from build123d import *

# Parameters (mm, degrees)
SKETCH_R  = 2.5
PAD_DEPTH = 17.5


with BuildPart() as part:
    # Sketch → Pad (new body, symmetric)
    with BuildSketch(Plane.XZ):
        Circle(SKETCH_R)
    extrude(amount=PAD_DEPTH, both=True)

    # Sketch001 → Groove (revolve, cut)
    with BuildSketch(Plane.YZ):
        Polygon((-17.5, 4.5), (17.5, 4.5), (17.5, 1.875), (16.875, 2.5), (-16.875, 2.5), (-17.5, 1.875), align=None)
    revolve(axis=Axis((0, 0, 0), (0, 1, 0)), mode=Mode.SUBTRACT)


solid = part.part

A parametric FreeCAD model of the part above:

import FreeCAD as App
import Part
import Sketcher
Q = App.Units.Quantity

doc = App.newDocument("Part")
body = doc.addObject("PartDesign::Body", "Body")

# Sketch on XZ plane
sketch1 = doc.addObject("Sketcher::SketchObject", "Sketch")
body.addObject(sketch1)
sketch1.AttachmentSupport = (doc.XZ_Plane, [""])
sketch1.MapMode = "FlatFace"
sketch1.addGeometry(Part.Circle(App.Vector(0, 0, 0), App.Vector(0, 0, 1), 2.5), False)
sketch1.addConstraint([
    Sketcher.Constraint("Coincident", 0, 3, -1, 1),
    Sketcher.Constraint("Diameter", 0, Q("5 mm")),
])
pad1 = doc.addObject("PartDesign::Pad", "Pad")
body.addObject(pad1)
pad1.Profile = sketch1
pad1.Length = 35
pad1.Midplane = True

# Sketch on YZ plane
sketch2 = doc.addObject("Sketcher::SketchObject", "Sketch001")
body.addObject(sketch2)
sketch2.AttachmentSupport = (doc.YZ_Plane, [""])
sketch2.MapMode = "FlatFace"
sketch2.addGeometry([
    Part.LineSegment(App.Vector(17.5, 4.5, 0), App.Vector(-17.5, 4.5, 0)),  # 0
    Part.LineSegment(App.Vector(-17.5, 4.5, 0), App.Vector(-17.5, 1.9, 0)),  # 1
    Part.LineSegment(App.Vector(-17.5, 1.9, 0), App.Vector(-16.9, 2.5, 0)),  # 2
    Part.LineSegment(App.Vector(-16.9, 2.5, 0), App.Vector(16.9, 2.5, 0)),  # 3
    Part.LineSegment(App.Vector(16.9, 2.5, 0), App.Vector(17.5, 1.9, 0)),  # 4
    Part.LineSegment(App.Vector(17.5, 1.9, 0), App.Vector(17.5, 4.5, 0)),  # 5
], False)
sketch2.addConstraint([
    Sketcher.Constraint("Coincident", 0, 2, 1, 1),
    Sketcher.Constraint("Coincident", 1, 2, 2, 1),
    Sketcher.Constraint("Coincident", 2, 2, 3, 1),
    Sketcher.Constraint("Coincident", 3, 2, 4, 1),
    Sketcher.Constraint("Coincident", 4, 2, 5, 1),
    Sketcher.Constraint("Coincident", 5, 2, 0, 1),
    Sketcher.Constraint("Horizontal", 0),
    Sketcher.Constraint("Vertical", 1),
    Sketcher.Constraint("Horizontal", 3),
    Sketcher.Constraint("Vertical", 5),
    Sketcher.Constraint("Symmetric", 1, 2, 4, 2, -2),
    Sketcher.Constraint("Perpendicular", 2, 4),
    Sketcher.Constraint("Equal", 2, 4),
    Sketcher.Constraint("DistanceX", 0, 2, 0, 1, Q("35 mm")),
    Sketcher.Constraint("DistanceY", 2, 2, 0, 2, Q("2 mm")),
    Sketcher.Constraint("DistanceX", 3, 1, 3, 2, Q("33.75 mm")),
    Sketcher.Constraint("DistanceY", -1, 1, 0, 2, Q("4.5 mm")),
])
groove = doc.addObject("PartDesign::Groove", "Groove")
body.addObject(groove)
groove.Profile = sketch2
groove.ReferenceAxis = (sketch2, ["H_Axis"])
groove.Angle = 360

doc.recompute()
